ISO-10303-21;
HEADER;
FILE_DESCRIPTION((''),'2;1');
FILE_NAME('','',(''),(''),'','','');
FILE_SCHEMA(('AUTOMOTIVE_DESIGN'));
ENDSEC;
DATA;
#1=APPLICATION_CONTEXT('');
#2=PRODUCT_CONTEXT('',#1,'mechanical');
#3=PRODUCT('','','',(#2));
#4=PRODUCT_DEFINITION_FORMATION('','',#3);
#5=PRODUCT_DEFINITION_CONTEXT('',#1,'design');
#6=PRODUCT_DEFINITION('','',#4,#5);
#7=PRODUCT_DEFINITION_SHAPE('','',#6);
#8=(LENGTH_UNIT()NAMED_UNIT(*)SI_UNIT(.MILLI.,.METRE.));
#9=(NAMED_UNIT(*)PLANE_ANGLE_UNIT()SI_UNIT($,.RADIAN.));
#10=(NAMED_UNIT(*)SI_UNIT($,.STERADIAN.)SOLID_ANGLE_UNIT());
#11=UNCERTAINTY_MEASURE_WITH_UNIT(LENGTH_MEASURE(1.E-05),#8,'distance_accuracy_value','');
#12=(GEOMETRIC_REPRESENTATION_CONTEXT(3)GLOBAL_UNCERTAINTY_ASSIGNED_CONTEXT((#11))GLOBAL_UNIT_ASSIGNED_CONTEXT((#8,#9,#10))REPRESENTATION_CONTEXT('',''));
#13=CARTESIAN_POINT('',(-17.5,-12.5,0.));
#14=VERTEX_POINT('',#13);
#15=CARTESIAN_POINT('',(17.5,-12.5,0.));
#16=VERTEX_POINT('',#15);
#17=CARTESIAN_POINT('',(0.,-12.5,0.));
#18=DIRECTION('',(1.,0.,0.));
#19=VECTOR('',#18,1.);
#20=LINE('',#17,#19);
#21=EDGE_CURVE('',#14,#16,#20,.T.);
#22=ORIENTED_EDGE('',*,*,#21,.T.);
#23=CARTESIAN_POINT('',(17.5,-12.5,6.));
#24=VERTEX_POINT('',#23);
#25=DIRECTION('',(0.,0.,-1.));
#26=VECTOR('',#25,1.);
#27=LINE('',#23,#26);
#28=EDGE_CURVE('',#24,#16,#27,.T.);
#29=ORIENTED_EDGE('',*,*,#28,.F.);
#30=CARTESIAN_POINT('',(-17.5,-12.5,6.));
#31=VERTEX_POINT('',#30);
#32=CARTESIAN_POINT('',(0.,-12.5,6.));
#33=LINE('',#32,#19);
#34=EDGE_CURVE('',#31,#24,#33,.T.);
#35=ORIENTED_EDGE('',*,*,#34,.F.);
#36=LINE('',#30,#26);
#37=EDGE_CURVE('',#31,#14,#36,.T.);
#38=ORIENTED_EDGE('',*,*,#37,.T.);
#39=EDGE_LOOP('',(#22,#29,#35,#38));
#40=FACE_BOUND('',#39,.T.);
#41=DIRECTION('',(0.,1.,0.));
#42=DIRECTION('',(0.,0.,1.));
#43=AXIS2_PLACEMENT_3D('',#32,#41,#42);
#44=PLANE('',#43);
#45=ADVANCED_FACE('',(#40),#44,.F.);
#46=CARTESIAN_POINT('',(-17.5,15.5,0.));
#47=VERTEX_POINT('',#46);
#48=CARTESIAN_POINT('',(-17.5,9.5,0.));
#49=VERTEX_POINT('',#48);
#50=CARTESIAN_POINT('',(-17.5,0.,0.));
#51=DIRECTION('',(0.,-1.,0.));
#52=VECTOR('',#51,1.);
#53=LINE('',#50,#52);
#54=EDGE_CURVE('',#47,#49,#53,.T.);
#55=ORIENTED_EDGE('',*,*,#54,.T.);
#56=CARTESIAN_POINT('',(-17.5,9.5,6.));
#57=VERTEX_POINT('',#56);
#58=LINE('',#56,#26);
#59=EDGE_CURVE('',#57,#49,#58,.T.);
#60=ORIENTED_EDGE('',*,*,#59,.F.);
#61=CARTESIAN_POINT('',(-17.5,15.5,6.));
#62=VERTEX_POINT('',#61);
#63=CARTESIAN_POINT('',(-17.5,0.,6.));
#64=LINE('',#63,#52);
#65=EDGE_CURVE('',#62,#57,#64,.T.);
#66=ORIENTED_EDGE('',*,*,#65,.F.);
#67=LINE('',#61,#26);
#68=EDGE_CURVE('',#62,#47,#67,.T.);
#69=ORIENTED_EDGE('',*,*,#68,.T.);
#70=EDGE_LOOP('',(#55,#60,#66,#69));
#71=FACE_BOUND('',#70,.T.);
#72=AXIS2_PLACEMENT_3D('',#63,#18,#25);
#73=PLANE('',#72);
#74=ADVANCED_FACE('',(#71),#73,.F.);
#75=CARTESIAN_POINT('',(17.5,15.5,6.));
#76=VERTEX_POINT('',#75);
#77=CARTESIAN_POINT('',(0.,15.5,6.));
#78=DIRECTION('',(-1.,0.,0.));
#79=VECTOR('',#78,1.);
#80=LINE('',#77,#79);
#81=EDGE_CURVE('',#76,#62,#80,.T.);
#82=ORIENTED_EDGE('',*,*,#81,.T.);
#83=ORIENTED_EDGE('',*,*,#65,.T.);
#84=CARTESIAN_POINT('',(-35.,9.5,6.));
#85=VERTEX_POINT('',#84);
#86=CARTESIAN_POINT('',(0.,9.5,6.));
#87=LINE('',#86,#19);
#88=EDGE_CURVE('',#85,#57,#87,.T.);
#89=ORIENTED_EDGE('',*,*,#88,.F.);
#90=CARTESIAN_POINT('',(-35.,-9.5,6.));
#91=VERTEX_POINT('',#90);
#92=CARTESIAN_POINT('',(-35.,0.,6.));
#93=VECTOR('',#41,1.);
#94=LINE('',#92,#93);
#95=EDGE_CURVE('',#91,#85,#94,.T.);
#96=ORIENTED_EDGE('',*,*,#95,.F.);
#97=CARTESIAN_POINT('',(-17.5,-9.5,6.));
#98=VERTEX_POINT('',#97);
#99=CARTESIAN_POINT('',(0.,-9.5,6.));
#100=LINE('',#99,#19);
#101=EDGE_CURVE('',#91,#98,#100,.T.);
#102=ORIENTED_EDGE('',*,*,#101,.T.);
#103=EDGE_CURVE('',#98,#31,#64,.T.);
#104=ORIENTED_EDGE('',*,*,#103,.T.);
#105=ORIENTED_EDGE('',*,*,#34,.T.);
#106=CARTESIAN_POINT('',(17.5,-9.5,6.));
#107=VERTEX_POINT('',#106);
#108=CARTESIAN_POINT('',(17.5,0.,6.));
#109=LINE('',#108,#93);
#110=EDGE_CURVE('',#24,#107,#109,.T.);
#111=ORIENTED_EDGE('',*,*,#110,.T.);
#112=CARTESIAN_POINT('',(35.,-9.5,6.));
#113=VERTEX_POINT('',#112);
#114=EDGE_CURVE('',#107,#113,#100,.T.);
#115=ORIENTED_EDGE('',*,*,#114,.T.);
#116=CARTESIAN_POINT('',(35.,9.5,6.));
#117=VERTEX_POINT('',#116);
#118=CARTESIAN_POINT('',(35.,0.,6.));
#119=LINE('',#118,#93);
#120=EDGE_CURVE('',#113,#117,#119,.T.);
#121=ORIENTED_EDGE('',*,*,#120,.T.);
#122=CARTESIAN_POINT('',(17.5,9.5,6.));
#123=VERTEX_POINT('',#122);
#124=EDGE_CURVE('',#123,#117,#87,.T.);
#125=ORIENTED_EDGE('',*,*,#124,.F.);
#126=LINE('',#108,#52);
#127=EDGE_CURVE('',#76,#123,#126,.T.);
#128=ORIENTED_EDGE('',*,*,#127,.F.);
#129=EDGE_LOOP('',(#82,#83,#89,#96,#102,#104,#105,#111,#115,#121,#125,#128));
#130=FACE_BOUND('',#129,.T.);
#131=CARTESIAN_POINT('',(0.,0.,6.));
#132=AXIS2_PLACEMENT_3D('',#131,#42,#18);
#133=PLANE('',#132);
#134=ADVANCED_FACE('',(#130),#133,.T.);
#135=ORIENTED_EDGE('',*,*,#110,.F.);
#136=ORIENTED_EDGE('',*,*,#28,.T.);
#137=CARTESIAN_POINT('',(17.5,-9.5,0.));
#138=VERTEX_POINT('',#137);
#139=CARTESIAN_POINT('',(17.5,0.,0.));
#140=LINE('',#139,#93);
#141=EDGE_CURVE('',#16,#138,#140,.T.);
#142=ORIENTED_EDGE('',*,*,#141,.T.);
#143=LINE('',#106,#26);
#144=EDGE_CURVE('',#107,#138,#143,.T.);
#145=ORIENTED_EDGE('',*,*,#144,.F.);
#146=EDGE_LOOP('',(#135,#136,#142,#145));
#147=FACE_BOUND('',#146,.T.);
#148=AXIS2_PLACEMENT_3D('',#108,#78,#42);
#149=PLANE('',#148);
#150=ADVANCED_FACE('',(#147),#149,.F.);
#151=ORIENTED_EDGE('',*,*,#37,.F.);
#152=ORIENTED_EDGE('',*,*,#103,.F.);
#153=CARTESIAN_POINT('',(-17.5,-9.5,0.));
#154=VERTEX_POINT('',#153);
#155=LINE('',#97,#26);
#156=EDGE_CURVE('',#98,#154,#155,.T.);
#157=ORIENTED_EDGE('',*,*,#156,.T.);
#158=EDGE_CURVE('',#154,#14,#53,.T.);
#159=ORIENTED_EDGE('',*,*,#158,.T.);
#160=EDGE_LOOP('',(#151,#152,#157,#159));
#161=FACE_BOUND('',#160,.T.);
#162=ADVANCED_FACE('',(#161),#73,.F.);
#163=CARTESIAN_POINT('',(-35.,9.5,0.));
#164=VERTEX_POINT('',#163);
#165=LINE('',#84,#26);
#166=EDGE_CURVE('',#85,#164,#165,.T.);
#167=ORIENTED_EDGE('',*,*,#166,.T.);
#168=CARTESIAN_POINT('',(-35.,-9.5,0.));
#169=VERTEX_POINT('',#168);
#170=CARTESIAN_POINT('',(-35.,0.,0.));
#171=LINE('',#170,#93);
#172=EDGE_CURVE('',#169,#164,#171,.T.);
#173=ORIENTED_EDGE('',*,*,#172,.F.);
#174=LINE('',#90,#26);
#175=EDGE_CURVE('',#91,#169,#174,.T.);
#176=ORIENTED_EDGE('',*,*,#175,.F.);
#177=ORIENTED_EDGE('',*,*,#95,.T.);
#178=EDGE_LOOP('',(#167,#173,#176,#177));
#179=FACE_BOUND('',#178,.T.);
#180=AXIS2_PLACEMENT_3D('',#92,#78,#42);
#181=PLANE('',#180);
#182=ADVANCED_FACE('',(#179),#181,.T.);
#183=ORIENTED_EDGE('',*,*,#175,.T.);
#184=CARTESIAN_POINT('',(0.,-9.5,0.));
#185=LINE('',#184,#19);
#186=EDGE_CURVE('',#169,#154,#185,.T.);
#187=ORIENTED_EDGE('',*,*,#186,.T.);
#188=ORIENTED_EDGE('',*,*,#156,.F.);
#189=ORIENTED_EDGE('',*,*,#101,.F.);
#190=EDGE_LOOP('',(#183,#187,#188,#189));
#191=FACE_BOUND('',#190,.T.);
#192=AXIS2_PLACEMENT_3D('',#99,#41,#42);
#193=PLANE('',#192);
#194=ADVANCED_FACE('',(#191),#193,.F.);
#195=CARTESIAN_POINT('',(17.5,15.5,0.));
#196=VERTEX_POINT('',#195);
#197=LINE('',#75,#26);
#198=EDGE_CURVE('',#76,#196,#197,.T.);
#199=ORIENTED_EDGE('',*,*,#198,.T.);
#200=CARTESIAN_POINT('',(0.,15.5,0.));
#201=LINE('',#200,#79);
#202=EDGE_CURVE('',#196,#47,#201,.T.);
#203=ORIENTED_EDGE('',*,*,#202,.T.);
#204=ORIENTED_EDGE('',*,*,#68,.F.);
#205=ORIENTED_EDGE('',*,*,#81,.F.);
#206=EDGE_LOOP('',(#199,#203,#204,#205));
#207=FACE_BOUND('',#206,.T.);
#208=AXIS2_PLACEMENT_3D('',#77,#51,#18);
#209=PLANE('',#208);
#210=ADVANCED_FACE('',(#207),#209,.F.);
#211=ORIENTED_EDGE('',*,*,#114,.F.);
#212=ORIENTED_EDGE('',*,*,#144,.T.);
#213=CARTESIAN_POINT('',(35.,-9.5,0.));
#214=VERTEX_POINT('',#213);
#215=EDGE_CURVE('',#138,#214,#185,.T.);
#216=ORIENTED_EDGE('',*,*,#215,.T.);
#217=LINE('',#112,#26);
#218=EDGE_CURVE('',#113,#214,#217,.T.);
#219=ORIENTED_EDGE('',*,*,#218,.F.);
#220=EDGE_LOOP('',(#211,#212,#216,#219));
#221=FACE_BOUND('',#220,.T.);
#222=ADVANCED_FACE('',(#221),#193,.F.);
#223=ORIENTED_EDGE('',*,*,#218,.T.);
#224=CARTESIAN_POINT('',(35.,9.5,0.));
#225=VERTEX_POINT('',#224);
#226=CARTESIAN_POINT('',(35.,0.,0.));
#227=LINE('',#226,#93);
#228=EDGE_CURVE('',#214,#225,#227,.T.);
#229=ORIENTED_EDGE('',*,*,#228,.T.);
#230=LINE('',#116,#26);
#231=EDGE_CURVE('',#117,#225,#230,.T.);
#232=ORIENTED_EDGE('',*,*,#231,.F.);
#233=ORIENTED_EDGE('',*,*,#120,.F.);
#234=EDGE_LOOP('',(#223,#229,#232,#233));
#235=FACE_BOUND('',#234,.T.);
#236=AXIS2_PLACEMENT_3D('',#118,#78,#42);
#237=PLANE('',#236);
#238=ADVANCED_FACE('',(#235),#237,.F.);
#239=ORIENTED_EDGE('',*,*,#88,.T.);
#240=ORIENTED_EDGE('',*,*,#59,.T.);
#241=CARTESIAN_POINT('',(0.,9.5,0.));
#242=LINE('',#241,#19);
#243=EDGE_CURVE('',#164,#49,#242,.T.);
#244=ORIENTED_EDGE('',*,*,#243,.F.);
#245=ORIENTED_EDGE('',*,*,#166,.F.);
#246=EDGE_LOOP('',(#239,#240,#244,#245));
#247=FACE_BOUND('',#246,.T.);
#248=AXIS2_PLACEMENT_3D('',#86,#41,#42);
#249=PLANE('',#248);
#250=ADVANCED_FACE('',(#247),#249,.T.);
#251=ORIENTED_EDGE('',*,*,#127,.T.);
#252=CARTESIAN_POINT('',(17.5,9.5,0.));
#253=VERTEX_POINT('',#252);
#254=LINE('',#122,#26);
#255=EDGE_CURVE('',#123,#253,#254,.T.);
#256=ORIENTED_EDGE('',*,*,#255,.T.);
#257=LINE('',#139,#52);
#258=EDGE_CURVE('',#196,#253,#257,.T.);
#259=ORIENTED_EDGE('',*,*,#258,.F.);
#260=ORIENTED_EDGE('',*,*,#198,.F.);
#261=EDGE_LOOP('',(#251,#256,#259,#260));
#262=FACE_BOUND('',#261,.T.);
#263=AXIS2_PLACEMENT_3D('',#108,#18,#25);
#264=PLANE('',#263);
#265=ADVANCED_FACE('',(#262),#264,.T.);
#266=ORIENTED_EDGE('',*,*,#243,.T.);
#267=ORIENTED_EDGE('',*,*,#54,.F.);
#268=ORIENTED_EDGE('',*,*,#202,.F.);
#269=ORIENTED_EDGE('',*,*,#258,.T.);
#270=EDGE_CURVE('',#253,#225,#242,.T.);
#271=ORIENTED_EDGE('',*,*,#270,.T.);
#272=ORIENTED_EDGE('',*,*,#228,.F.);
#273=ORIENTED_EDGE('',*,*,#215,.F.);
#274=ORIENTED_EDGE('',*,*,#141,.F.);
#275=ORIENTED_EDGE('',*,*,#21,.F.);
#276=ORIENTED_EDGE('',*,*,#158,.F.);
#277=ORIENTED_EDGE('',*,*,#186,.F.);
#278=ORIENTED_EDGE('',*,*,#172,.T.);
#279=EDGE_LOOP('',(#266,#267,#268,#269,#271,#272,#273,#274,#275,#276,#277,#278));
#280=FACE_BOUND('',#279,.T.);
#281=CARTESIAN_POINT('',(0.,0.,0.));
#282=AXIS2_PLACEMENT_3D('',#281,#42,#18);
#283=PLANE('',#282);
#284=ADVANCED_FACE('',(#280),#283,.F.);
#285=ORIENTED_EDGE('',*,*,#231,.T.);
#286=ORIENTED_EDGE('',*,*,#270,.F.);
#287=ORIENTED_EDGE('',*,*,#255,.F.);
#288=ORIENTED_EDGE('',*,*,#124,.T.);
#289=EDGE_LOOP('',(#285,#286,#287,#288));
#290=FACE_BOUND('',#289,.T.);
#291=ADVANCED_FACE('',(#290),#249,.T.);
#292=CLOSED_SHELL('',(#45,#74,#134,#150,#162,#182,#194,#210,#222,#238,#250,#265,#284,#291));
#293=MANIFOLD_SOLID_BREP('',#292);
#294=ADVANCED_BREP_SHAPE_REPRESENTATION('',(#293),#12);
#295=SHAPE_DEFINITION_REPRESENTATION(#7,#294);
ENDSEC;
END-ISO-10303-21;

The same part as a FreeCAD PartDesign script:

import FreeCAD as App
import Part
import Sketcher
from FreeCAD import Vector


def add_polygon(sketch, points):
    """Adds a closed chain of lines whose ends are joined by coincident constraints."""
    first, n = sketch.GeometryCount, len(points)
    for a, b in zip(points, points[1:] + points[:1]):
        sketch.addGeometry(Part.LineSegment(App.Vector(*a, 0), App.Vector(*b, 0)), False)
    for i in range(n):
        sketch.addConstraint(Sketcher.Constraint("Coincident", first + i, 2, first + (i + 1) % n, 1))

doc = App.newDocument("Part")
body = doc.addObject("PartDesign::Body", "Body")

sketch1 = doc.addObject("Sketcher::SketchObject", "Sketch")
body.addObject(sketch1)
sketch1.AttachmentSupport = (doc.XY_Plane, [""])
sketch1.MapMode = "FlatFace"
add_polygon(sketch1, [(-35, 9.5), (-35, -9.5), (-17.5, -9.5), (-17.5, -12.5), (17.5, -12.5), (17.5, -9.5), (35, -9.5), (35, 9.5), (17.5, 9.5), (17.5, 15.5), (-17.5, 15.5), (-17.5, 9.5)])
sketch1.addConstraint([
    Sketcher.Constraint("Vertical", 0),
    Sketcher.Constraint("Horizontal", 1),
    Sketcher.Constraint("Vertical", 2),
    Sketcher.Constraint("Horizontal", 3),
    Sketcher.Constraint("Vertical", 4),
    Sketcher.Constraint("Horizontal", 5),
    Sketcher.Constraint("Vertical", 6),
    Sketcher.Constraint("Horizontal", 7),
    Sketcher.Constraint("Vertical", 8),
    Sketcher.Constraint("Horizontal", 9),
    Sketcher.Constraint("Vertical", 10),
    Sketcher.Constraint("Horizontal", 11),
    Sketcher.Constraint("Symmetric", 0, 2, 6, 2, -1, 1),
    Sketcher.Constraint("Symmetric", 4, 2, 10, 2, -1, 1),
    Sketcher.Constraint("Symmetric", 1, 2, 4, 2, -2),
    Sketcher.Constraint("Vertical", 4, 2, 7, 2),
    Sketcher.Constraint("DistanceX", 3, 1, 3, 2, 35.0),
    Sketcher.Constraint("DistanceY", 0, 2, 0, 1, 19.0),
    Sketcher.Constraint("DistanceY", 2, 2, 2, 1, 3.0),
    Sketcher.Constraint("DistanceY", 8, 1, 8, 2, 6.0),
    Sketcher.Constraint("DistanceX", 1, 1, 1, 2, 17.5),
])
pad1 = doc.addObject("PartDesign::Pad", "Pad")
body.addObject(pad1)
pad1.Profile = sketch1
pad1.Length = 6

doc.recompute()
